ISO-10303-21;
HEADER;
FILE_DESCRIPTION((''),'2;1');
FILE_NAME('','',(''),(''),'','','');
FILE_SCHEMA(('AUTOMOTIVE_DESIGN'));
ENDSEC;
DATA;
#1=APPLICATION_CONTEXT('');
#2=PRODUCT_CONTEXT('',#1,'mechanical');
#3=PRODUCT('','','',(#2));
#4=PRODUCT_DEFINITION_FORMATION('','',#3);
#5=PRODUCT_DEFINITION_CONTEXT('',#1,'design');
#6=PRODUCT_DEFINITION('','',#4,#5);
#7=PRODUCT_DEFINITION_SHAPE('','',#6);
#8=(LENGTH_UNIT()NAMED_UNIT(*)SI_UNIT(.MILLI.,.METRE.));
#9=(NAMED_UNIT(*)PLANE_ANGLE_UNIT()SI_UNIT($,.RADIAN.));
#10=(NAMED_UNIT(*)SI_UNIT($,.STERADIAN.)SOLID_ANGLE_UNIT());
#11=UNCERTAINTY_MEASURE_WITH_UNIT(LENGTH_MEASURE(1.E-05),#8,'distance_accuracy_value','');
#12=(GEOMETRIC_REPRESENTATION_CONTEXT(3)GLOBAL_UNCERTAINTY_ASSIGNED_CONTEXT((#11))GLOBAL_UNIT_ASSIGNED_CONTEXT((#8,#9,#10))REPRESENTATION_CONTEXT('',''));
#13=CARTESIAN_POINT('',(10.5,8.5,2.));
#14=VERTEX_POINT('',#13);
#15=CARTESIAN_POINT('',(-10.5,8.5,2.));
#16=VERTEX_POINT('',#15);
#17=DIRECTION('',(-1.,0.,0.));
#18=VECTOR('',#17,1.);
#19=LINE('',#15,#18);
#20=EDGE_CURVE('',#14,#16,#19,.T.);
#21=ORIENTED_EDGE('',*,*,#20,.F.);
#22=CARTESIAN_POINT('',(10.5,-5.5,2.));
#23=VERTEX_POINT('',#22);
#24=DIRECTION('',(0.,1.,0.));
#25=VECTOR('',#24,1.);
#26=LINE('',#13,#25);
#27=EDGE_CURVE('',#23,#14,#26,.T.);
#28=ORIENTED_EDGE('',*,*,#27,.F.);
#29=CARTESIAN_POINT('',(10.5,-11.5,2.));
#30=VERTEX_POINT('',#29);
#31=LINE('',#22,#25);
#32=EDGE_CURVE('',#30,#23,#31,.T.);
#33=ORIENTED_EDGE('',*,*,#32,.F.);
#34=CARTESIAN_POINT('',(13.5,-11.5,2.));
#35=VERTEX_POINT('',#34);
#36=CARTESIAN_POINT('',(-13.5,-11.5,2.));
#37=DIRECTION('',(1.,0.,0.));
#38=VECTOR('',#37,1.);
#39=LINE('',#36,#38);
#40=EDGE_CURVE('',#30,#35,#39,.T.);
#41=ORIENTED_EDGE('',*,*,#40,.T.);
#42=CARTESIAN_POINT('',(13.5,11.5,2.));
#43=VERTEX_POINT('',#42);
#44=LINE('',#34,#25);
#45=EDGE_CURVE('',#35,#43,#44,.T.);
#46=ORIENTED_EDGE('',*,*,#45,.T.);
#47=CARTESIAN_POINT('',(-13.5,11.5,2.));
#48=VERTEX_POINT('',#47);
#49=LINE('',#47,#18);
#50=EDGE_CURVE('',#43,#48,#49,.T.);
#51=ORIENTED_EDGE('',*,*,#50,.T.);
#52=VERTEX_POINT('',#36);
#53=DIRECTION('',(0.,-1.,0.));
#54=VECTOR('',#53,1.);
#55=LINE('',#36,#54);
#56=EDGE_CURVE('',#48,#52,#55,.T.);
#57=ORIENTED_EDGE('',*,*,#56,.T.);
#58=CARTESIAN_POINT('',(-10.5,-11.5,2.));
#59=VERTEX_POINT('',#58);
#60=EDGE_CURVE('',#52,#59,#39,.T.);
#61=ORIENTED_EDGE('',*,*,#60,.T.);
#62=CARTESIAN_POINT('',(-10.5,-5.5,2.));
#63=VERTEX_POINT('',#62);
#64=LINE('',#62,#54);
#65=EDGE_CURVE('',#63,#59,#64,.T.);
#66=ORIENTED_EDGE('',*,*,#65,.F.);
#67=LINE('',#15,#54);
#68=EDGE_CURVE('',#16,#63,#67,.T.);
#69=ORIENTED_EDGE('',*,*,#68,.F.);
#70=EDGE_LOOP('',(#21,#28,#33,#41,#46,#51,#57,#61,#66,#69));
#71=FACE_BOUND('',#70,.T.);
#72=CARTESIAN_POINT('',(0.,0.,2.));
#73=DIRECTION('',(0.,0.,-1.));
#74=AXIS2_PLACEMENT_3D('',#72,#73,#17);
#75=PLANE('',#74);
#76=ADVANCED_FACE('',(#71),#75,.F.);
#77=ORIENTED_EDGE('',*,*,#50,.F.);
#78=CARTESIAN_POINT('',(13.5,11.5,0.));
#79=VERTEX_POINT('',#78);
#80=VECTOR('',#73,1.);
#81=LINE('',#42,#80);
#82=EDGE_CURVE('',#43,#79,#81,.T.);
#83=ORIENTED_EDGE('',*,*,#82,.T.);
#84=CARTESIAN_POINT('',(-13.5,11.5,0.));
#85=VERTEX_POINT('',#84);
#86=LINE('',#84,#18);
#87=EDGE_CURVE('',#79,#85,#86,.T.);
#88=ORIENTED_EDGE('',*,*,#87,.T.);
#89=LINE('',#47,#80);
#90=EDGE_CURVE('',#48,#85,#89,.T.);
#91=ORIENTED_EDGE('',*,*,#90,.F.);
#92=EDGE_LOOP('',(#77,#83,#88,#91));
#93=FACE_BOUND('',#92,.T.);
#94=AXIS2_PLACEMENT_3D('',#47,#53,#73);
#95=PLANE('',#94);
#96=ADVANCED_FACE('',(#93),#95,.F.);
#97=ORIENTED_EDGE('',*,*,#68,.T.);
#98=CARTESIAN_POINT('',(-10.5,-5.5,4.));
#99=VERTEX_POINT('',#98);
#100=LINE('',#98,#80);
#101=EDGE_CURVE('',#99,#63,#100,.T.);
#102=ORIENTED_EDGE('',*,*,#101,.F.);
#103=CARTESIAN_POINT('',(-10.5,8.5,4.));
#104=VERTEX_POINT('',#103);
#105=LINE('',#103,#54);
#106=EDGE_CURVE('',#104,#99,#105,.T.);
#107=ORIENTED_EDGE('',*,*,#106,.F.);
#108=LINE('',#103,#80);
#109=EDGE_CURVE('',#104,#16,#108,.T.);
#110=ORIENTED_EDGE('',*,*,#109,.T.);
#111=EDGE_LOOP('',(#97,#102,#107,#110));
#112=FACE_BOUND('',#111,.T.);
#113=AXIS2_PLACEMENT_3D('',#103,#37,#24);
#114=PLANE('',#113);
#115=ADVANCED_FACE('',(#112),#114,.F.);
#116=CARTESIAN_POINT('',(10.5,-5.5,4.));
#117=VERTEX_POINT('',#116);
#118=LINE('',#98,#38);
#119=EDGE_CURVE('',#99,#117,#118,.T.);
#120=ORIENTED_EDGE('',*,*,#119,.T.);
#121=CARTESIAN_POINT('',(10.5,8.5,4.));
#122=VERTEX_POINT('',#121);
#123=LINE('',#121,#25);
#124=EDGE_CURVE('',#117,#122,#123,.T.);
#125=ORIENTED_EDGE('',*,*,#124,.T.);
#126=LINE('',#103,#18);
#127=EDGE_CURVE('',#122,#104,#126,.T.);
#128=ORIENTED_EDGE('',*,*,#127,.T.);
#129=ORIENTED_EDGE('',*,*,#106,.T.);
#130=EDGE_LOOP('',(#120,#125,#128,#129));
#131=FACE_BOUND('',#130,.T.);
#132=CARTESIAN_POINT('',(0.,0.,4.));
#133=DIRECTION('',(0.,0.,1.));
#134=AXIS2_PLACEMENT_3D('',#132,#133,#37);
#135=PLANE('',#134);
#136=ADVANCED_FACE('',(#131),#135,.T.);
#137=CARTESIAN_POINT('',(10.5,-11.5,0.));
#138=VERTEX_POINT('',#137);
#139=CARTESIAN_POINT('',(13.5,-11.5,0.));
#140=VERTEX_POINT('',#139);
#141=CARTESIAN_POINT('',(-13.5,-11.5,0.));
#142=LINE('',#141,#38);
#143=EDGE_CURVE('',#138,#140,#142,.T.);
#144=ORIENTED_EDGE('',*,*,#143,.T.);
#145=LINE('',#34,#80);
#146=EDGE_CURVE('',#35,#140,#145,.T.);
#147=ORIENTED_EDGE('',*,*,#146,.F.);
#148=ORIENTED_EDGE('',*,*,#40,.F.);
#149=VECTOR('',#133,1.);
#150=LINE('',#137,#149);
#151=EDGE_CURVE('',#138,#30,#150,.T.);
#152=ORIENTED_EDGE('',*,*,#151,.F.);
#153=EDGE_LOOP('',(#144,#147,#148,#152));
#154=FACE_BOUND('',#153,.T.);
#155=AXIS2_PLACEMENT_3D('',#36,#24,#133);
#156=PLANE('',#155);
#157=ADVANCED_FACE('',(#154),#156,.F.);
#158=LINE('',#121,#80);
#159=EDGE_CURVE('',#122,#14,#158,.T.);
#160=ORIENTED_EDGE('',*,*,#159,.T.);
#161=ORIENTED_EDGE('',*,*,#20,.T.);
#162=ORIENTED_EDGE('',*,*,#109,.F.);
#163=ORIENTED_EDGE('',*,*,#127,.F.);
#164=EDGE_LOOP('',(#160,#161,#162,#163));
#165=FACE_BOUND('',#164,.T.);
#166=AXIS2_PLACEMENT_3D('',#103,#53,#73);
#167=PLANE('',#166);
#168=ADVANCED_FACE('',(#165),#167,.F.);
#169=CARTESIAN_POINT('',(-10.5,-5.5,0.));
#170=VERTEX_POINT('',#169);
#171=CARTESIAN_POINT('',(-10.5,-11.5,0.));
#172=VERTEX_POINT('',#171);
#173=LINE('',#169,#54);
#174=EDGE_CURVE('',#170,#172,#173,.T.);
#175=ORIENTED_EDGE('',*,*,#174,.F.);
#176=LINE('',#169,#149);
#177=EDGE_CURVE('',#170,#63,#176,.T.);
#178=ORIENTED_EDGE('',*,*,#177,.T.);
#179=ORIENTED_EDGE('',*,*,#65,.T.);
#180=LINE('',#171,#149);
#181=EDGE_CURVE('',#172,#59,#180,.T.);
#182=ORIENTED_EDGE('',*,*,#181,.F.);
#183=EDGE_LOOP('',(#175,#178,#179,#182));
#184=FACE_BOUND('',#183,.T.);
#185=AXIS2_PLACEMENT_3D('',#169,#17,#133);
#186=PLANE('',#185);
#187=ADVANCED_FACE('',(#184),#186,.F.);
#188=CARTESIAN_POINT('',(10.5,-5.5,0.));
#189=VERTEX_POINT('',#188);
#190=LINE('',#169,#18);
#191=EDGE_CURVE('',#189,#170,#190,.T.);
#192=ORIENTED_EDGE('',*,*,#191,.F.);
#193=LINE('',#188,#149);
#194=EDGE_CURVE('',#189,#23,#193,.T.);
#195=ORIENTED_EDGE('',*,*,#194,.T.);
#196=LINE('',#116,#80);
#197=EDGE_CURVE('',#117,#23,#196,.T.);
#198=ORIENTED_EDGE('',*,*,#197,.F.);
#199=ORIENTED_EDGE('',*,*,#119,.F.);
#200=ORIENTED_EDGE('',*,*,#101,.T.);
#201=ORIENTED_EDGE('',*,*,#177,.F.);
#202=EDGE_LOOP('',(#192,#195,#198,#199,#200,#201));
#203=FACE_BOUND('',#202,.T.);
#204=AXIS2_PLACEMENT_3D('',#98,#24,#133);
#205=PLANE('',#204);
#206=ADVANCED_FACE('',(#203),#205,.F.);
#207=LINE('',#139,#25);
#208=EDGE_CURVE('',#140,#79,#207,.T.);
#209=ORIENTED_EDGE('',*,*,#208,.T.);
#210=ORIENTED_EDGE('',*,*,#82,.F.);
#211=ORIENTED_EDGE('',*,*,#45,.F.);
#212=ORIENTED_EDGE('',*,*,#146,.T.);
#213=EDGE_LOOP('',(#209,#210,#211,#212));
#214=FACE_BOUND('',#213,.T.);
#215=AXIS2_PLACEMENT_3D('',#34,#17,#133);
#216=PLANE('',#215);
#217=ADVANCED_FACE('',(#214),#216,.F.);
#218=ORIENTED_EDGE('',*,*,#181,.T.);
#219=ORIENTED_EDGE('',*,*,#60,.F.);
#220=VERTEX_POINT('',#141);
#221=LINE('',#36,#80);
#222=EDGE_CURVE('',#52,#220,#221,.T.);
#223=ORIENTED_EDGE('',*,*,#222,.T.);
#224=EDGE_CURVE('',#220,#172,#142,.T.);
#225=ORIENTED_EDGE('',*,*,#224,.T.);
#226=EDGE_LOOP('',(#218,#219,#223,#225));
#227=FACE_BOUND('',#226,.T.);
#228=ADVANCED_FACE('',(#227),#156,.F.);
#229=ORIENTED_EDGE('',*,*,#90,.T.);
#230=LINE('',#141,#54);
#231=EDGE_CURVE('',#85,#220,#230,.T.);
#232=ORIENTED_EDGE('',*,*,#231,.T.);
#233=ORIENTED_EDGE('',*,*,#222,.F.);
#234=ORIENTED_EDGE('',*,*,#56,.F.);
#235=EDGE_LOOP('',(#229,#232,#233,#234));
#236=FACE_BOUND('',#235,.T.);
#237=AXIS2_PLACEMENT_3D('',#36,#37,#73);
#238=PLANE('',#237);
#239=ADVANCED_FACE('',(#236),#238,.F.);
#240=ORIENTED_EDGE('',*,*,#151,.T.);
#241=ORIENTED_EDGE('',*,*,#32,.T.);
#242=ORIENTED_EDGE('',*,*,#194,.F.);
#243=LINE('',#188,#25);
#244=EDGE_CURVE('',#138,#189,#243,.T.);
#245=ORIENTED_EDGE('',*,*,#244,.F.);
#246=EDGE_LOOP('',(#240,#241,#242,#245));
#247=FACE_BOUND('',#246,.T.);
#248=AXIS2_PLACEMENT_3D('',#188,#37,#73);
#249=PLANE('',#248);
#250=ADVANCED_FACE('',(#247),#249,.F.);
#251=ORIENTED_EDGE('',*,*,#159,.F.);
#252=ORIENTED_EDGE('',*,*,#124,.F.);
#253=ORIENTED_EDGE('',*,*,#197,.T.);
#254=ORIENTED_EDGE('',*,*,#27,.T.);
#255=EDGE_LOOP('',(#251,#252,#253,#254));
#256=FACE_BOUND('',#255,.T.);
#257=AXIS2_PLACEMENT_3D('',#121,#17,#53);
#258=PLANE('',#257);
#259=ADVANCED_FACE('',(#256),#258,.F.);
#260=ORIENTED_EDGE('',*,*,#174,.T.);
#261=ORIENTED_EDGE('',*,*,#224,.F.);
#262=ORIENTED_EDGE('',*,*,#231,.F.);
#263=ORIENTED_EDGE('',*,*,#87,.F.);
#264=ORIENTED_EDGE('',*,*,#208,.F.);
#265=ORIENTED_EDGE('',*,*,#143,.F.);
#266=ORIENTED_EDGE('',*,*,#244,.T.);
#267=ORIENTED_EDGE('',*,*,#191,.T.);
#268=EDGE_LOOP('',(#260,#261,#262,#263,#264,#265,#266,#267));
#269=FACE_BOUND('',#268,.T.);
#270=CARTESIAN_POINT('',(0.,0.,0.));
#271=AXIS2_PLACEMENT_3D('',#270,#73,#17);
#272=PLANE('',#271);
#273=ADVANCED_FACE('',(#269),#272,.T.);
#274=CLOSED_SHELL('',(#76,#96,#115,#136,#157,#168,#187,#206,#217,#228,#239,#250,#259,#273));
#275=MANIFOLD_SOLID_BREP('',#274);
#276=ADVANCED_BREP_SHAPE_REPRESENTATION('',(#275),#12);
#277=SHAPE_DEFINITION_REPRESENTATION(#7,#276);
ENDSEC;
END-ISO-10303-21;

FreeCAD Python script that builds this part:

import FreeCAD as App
import Part
import Sketcher

doc = App.newDocument("Part")
body = doc.addObject("PartDesign::Body", "Body")

# Sketch on XY plane
sketch1 = body.newObject("Sketcher::SketchObject", "Sketch")
sketch1.AttachmentSupport = (doc.getObject("XY_Plane"), [""])
sketch1.MapMode = "FlatFace"
sketch1.addGeometry(Part.LineSegment(App.Vector(-14, 12, 0), App.Vector(-14, -12, 0)), False)
sketch1.addGeometry(Part.LineSegment(App.Vector(-14, -12, 0), App.Vector(14, -12, 0)), False)
sketch1.addGeometry(Part.LineSegment(App.Vector(14, -12, 0), App.Vector(14, 12, 0)), False)
sketch1.addGeometry(Part.LineSegment(App.Vector(14, 12, 0), App.Vector(-14, 12, 0)), False)
sketch1.addConstraint(Sketcher.Constraint("Coincident", 0, 2, 1, 1))
sketch1.addConstraint(Sketcher.Constraint("Coincident", 1, 2, 2, 1))
sketch1.addConstraint(Sketcher.Constraint("Coincident", 2, 2, 3, 1))
sketch1.addConstraint(Sketcher.Constraint("Coincident", 3, 2, 0, 1))
sketch1.addConstraint(Sketcher.Constraint("Vertical", 0))
sketch1.addConstraint(Sketcher.Constraint("Horizontal", 1))
sketch1.addConstraint(Sketcher.Constraint("Vertical", 2))
sketch1.addConstraint(Sketcher.Constraint("Horizontal", 3))
sketch1.addConstraint(Sketcher.Constraint("Symmetric", 0, 2, 2, 2, -1, 1))
sketch1.addConstraint(Sketcher.Constraint("DistanceX", 1, 1, 1, 2, 27.0))
sketch1.addConstraint(Sketcher.Constraint("DistanceY", 0, 2, 0, 1, 23.0))
pad1 = body.newObject("PartDesign::Pad", "Pad")
pad1.Profile = sketch1
pad1.Length = 2

# Sketch on XY plane
sketch2 = body.newObject("Sketcher::SketchObject", "Sketch001")
sketch2.AttachmentSupport = (doc.getObject("XY_Plane"), [""])
sketch2.MapMode = "FlatFace"
sketch2.AttachmentOffset = App.Placement(App.Vector(0, 0, 2), App.Rotation())
sketch2.addGeometry(Part.LineSegment(App.Vector(-10, 8, 0), App.Vector(-10, -6, 0)), False)
sketch2.addGeometry(Part.LineSegment(App.Vector(-10, -6, 0), App.Vector(10, -6, 0)), False)
sketch2.addGeometry(Part.LineSegment(App.Vector(10, -6, 0), App.Vector(10, 8, 0)), False)
sketch2.addGeometry(Part.LineSegment(App.Vector(10, 8, 0), App.Vector(-10, 8, 0)), False)
sketch2.addConstraint(Sketcher.Constraint("Coincident", 0, 2, 1, 1))
sketch2.addConstraint(Sketcher.Constraint("Coincident", 1, 2, 2, 1))
sketch2.addConstraint(Sketcher.Constraint("Coincident", 2, 2, 3, 1))
sketch2.addConstraint(Sketcher.Constraint("Coincident", 3, 2, 0, 1))
sketch2.addConstraint(Sketcher.Constraint("Vertical", 0))
sketch2.addConstraint(Sketcher.Constraint("Horizontal", 1))
sketch2.addConstraint(Sketcher.Constraint("Vertical", 2))
sketch2.addConstraint(Sketcher.Constraint("Horizontal", 3))
sketch2.addConstraint(Sketcher.Constraint("DistanceX", 1, 1, 1, 2, 21.0))
sketch2.addConstraint(Sketcher.Constraint("DistanceY", 0, 2, 0, 1, 14.0))
sketch2.addConstraint(Sketcher.Constraint("DistanceX", 0, 2, -1, 1, 10.5))
sketch2.addConstraint(Sketcher.Constraint("DistanceY", 0, 2, -1, 1, 5.5))
pad2 = body.newObject("PartDesign::Pad", "Pad001")
pad2.Profile = sketch2
pad2.Length = 2

# Sketch on XY plane
sketch3 = body.newObject("Sketcher::SketchObject", "Sketch002")
sketch3.AttachmentSupport = (doc.getObject("XY_Plane"), [""])
sketch3.MapMode = "FlatFace"
sketch3.AttachmentOffset = App.Placement(App.Vector(0, 0, 2), App.Rotation())
sketch3.addGeometry(Part.LineSegment(App.Vector(-10, -6, 0), App.Vector(-10, -12, 0)), False)
sketch3.addGeometry(Part.LineSegment(App.Vector(-10, -12, 0), App.Vector(10, -12, 0)), False)
sketch3.addGeometry(Part.LineSegment(App.Vector(10, -12, 0), App.Vector(10, -6, 0)), False)
sketch3.addGeometry(Part.LineSegment(App.Vector(10, -6, 0), App.Vector(-10, -6, 0)), False)
sketch3.addConstraint(Sketcher.Constraint("Coincident", 0, 2, 1, 1))
sketch3.addConstraint(Sketcher.Constraint("Coincident", 1, 2, 2, 1))
sketch3.addConstraint(Sketcher.Constraint("Coincident", 2, 2, 3, 1))
sketch3.addConstraint(Sketcher.Constraint("Coincident", 3, 2, 0, 1))
sketch3.addConstraint(Sketcher.Constraint("Vertical", 0))
sketch3.addConstraint(Sketcher.Constraint("Horizontal", 1))
sketch3.addConstraint(Sketcher.Constraint("Vertical", 2))
sketch3.addConstraint(Sketcher.Constraint("Horizontal", 3))
sketch3.addConstraint(Sketcher.Constraint("DistanceX", 1, 1, 1, 2, 21.0))
sketch3.addConstraint(Sketcher.Constraint("DistanceY", 0, 2, 0, 1, 6.0))
sketch3.addConstraint(Sketcher.Constraint("DistanceX", 0, 2, -1, 1, 10.5))
sketch3.addConstraint(Sketcher.Constraint("DistanceY", 0, 2, -1, 1, 11.5))
pocket1 = body.newObject("PartDesign::Pocket", "Pocket")
pocket1.Profile = sketch3
pocket1.Length = 2

doc.recompute()
